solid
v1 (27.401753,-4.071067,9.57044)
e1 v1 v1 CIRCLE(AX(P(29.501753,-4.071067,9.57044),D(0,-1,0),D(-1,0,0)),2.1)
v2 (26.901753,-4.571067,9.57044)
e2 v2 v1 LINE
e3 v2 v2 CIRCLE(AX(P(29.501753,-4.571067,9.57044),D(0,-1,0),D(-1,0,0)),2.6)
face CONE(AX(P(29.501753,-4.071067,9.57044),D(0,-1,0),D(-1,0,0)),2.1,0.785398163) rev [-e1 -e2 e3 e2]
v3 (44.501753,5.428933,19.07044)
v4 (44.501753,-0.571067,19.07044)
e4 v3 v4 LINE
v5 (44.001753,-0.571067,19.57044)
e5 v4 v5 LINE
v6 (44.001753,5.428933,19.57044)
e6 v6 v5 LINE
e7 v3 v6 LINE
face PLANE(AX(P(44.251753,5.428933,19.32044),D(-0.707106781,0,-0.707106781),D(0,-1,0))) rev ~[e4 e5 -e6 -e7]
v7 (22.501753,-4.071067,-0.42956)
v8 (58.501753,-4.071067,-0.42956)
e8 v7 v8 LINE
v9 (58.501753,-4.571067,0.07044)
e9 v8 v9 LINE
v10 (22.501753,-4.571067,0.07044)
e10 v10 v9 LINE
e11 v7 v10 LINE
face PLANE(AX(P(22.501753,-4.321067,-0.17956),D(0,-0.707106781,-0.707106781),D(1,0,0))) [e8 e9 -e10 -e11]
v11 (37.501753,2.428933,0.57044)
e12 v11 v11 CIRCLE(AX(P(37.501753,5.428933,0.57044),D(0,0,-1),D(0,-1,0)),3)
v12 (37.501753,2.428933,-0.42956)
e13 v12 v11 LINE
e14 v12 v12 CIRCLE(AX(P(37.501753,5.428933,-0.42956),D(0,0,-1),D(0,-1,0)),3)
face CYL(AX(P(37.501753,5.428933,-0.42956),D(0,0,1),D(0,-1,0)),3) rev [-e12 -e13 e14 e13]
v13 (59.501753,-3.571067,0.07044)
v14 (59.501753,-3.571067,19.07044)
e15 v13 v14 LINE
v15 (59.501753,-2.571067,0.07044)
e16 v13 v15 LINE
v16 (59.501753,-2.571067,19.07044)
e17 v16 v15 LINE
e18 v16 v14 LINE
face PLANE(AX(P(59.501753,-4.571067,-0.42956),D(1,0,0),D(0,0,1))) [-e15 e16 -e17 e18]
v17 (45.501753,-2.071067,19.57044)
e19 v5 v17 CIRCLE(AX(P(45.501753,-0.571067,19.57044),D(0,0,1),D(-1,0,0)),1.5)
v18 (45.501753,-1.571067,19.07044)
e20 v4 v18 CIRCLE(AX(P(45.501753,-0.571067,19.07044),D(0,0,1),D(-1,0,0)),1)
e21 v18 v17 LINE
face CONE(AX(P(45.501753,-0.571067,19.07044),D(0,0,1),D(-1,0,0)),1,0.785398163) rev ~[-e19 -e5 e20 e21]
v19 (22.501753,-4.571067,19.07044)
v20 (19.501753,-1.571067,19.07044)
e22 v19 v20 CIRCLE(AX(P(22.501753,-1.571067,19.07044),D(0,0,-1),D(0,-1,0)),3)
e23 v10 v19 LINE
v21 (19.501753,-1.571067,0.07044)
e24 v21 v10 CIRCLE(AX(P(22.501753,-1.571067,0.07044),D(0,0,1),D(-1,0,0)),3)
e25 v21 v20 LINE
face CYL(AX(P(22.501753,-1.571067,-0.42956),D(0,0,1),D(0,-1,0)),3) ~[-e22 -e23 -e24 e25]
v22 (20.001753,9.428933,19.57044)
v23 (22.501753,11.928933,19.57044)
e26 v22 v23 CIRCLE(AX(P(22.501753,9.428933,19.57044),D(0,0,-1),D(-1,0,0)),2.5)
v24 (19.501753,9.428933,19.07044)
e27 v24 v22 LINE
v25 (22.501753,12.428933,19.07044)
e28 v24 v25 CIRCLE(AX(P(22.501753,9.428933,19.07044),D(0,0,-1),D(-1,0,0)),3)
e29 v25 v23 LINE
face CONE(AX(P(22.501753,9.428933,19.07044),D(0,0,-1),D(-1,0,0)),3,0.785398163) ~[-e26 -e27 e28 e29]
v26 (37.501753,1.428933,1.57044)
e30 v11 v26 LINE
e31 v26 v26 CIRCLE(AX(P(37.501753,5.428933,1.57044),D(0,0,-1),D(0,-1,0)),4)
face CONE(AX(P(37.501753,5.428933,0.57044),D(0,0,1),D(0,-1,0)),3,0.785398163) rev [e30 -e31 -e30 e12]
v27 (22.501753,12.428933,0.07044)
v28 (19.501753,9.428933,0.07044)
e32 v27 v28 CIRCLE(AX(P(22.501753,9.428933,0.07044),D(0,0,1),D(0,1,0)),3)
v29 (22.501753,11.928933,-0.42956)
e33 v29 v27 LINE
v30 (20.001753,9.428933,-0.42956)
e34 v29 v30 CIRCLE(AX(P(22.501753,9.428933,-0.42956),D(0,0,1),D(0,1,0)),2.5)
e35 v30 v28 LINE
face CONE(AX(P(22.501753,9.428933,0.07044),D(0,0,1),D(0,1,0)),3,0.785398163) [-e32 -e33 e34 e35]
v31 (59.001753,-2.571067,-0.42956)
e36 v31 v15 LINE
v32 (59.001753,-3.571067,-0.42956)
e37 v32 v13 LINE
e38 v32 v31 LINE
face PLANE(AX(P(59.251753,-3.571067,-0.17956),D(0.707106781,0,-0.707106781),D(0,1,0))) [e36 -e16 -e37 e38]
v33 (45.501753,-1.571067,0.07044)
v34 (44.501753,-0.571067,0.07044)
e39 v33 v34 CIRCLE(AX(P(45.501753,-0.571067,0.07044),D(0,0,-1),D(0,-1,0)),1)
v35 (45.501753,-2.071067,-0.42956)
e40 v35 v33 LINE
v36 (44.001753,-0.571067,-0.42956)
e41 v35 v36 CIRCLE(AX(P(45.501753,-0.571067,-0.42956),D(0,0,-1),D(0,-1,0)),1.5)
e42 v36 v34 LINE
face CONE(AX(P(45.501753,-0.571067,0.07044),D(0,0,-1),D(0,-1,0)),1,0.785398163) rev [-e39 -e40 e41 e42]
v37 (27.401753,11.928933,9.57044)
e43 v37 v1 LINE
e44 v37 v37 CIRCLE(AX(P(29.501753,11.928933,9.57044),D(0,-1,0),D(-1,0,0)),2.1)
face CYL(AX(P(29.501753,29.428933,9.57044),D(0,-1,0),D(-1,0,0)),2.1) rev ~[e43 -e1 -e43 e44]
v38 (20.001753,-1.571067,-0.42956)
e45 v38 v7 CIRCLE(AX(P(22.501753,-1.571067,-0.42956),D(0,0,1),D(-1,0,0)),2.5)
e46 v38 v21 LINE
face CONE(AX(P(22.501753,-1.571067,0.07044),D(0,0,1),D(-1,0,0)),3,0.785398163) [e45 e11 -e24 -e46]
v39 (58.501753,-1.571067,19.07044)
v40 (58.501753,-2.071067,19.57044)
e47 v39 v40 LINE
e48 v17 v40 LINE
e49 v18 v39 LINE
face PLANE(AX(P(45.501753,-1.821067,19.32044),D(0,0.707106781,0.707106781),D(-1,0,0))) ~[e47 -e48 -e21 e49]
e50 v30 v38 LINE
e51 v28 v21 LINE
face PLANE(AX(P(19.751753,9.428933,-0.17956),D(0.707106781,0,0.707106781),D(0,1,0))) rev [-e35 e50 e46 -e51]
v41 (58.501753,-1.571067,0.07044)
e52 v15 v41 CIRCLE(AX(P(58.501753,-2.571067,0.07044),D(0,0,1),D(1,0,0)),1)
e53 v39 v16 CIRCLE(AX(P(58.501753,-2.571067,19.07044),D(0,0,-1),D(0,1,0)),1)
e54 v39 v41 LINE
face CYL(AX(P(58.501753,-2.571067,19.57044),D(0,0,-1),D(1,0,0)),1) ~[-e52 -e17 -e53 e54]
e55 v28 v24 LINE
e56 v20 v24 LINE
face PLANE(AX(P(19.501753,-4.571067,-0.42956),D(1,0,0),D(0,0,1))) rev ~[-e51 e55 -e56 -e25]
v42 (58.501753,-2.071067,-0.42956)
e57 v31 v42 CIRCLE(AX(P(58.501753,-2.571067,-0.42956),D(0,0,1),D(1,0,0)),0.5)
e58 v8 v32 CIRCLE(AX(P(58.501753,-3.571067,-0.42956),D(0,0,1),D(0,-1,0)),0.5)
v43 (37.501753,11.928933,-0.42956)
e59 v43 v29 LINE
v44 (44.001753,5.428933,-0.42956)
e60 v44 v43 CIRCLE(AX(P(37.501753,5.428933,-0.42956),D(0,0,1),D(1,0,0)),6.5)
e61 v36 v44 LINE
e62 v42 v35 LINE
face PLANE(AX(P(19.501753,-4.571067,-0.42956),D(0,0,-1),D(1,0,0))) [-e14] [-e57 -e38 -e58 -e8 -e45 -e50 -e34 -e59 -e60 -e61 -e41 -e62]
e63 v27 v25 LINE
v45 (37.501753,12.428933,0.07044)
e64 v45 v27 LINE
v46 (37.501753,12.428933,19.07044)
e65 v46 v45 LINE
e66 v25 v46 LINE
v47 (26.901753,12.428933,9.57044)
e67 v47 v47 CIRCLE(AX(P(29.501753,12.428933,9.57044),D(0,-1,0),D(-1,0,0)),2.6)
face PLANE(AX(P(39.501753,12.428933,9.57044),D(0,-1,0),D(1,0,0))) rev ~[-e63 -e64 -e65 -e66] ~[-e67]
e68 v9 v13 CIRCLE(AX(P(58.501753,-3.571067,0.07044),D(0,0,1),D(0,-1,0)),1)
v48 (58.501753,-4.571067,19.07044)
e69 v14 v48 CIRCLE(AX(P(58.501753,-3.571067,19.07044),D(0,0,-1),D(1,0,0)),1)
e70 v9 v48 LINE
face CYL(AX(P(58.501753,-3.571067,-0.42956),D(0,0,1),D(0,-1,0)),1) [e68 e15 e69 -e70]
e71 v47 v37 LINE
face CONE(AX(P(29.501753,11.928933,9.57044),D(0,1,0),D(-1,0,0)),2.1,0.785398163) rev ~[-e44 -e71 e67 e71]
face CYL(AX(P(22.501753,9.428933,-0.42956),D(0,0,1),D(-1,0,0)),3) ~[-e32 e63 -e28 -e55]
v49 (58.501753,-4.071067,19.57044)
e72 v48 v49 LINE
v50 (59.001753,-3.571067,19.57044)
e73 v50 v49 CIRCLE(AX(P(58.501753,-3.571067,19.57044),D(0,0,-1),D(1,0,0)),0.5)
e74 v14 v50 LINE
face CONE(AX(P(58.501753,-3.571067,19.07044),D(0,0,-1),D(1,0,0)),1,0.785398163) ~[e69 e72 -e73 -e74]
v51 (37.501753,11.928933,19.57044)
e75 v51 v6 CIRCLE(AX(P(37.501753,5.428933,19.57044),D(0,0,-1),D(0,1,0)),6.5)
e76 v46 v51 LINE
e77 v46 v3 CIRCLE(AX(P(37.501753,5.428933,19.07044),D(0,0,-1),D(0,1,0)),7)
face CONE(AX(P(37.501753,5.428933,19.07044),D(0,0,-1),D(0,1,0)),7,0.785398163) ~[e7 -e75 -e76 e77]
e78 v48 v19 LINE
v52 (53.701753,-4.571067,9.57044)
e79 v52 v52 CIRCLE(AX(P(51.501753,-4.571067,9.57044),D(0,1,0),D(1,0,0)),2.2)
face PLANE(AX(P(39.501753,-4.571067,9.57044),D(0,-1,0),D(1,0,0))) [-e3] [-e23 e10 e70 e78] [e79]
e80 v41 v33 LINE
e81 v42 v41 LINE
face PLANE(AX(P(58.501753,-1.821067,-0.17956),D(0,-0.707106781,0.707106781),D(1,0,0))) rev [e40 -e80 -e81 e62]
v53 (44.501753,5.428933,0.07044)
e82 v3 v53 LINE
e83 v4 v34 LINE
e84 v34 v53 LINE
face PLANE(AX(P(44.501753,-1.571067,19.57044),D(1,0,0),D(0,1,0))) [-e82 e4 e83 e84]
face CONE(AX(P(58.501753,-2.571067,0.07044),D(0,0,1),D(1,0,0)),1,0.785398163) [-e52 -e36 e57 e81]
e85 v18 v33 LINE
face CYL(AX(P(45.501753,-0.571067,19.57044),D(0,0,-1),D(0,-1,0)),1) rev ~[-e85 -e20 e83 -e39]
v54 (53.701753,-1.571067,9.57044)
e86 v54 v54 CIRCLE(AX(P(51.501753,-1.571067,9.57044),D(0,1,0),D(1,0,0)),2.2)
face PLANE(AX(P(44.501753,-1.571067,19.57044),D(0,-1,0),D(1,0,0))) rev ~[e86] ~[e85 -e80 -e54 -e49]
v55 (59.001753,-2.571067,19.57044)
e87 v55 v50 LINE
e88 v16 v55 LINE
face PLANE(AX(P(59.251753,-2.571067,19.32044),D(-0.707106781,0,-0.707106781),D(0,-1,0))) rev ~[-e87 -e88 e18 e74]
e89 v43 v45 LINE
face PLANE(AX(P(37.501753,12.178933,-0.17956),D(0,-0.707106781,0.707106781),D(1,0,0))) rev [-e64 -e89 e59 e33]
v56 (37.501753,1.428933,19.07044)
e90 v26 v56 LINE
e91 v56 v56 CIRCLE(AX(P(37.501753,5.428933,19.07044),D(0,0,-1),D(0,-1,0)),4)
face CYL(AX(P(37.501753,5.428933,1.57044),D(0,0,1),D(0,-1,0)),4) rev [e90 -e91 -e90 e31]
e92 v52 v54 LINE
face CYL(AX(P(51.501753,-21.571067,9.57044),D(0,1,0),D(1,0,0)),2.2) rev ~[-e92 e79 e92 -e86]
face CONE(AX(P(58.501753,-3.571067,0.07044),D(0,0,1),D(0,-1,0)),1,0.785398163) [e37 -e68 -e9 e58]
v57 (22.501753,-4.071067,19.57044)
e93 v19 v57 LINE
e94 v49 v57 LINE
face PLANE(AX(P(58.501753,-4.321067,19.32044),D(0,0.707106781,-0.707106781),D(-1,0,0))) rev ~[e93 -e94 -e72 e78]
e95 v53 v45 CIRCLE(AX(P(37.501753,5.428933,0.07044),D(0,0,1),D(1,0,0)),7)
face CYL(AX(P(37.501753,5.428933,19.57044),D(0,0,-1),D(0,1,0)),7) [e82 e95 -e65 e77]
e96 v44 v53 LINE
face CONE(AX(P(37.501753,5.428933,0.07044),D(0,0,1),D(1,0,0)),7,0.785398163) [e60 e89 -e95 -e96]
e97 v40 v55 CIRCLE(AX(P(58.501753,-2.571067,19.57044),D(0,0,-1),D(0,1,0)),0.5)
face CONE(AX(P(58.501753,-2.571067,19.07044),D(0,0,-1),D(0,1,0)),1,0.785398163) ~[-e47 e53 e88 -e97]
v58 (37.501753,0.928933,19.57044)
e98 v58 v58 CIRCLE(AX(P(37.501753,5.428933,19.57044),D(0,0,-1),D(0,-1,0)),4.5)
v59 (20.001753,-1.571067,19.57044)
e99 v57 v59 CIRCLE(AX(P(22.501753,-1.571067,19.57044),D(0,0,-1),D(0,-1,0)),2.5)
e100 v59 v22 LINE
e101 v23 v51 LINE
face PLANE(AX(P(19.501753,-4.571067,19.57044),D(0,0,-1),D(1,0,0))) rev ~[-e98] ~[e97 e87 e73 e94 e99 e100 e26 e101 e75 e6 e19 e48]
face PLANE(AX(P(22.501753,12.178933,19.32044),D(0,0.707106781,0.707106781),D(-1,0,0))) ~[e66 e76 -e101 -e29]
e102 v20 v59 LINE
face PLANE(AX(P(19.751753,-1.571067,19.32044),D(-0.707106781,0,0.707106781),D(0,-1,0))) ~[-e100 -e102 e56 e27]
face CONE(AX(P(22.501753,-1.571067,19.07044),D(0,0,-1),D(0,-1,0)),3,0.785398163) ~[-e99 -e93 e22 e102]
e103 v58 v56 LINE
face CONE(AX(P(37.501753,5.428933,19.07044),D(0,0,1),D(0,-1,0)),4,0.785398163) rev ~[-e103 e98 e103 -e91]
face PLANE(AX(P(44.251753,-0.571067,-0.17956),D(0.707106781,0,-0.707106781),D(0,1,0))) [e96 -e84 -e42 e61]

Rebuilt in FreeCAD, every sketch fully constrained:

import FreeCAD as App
import Part
import Sketcher
from FreeCAD import Vector
Q = App.Units.Quantity


def edges_at(feature, points):
    """Names of the edges that pass closest to the given points."""
    edges = feature.Shape.Edges
    near = lambda p: min(range(len(edges)), key=lambda i: edges[i].distToShape(Part.Vertex(*p))[0])
    return sorted({f"Edge{near(p) + 1}" for p in points})

doc = App.newDocument("Part")
body = doc.addObject("PartDesign::Body", "Body")

sketch1 = doc.addObject("Sketcher::SketchObject", "Sketch")
body.addObject(sketch1)
sketch1.AttachmentSupport = (doc.XZ_Plane, [""])
sketch1.MapMode = "FlatFace"
sketch1.AttachmentOffset = App.Placement(Vector(0, 0, 4.571067), App.Rotation())
sketch1.addGeometry([
    Part.LineSegment(Vector(20, 20, 0), Vector(20, 0, 0)),
    Part.LineSegment(Vector(20, 0, 0), Vector(60, 0, 0)),
    Part.LineSegment(Vector(60, 0, 0), Vector(60, 20, 0)),
    Part.LineSegment(Vector(60, 20, 0), Vector(20, 20, 0)),
], False)
sketch1.addConstraint([
    Sketcher.Constraint("Coincident", 0, 2, 1, 1),
    Sketcher.Constraint("Coincident", 1, 2, 2, 1),
    Sketcher.Constraint("Coincident", 2, 2, 3, 1),
    Sketcher.Constraint("Coincident", 3, 2, 0, 1),
    Sketcher.Constraint("Vertical", 0),
    Sketcher.Constraint("Horizontal", 1),
    Sketcher.Constraint("Vertical", 2),
    Sketcher.Constraint("Horizontal", 3),
    Sketcher.Constraint("DistanceX", 1, 1, 1, 2, Q("40 mm")),
    Sketcher.Constraint("DistanceY", 0, 2, 0, 1, Q("20 mm")),
    Sketcher.Constraint("DistanceY", 0, 2, -1, 1, Q("0.42956 mm")),
    Sketcher.Constraint("DistanceX", -1, 1, 0, 2, Q("19.501753 mm")),
])
pad1 = doc.addObject("PartDesign::Pad", "Pad")
body.addObject(pad1)
pad1.Profile = sketch1
pad1.Length = 17
pad1.Reversed = True

sketch2 = doc.addObject("Sketcher::SketchObject", "Sketch001")
body.addObject(sketch2)
sketch2.AttachmentSupport = (doc.XY_Plane, [""])
sketch2.MapMode = "FlatFace"
sketch2.AttachmentOffset = App.Placement(Vector(0, 0, 19.57044), App.Rotation())
sketch2.addGeometry([
    Part.LineSegment(Vector(45, 12, 0), Vector(45, -2, 0)),
    Part.LineSegment(Vector(45, -2, 0), Vector(60, -2, 0)),
    Part.LineSegment(Vector(60, -2, 0), Vector(60, 12, 0)),
    Part.LineSegment(Vector(60, 12, 0), Vector(45, 12, 0)),
], False)
sketch2.addConstraint([
    Sketcher.Constraint("Coincident", 0, 2, 1, 1),
    Sketcher.Constraint("Coincident", 1, 2, 2, 1),
    Sketcher.Constraint("Coincident", 2, 2, 3, 1),
    Sketcher.Constraint("Coincident", 3, 2, 0, 1),
    Sketcher.Constraint("Vertical", 0),
    Sketcher.Constraint("Horizontal", 1),
    Sketcher.Constraint("Vertical", 2),
    Sketcher.Constraint("Horizontal", 3),
    Sketcher.Constraint("DistanceX", 1, 1, 1, 2, Q("15 mm")),
    Sketcher.Constraint("DistanceY", 0, 2, 0, 1, Q("14 mm")),
    Sketcher.Constraint("DistanceX", -1, 1, 0, 2, Q("44.501753 mm")),
    Sketcher.Constraint("DistanceY", 0, 2, -1, 1, Q("1.571067 mm")),
])
pocket1 = doc.addObject("PartDesign::Pocket", "Pocket")
body.addObject(pocket1)
pocket1.Profile = sketch2
pocket1.Type = "ThroughAll"

sketch3 = doc.addObject("Sketcher::SketchObject", "Sketch002")
body.addObject(sketch3)
sketch3.AttachmentSupport = (doc.XZ_Plane, [""])
sketch3.MapMode = "FlatFace"
sketch3.AttachmentOffset = App.Placement(Vector(0, 0, 4.571067), App.Rotation())
sketch3.addGeometry(Part.Circle(Vector(51.5, 9.6, 0), Vector(0, 0, 1), 2.2), False)
sketch3.addConstraint([
    Sketcher.Constraint("Diameter", 0, Q("4.4 mm")),
    Sketcher.Constraint("DistanceY", -1, 1, 0, 3, Q("9.57044 mm")),
    Sketcher.Constraint("DistanceX", -1, 1, 0, 3, Q("51.501753 mm")),
])
doc.recompute()
hole = doc.addObject("PartDesign::Hole", "Hole")
body.addObject(hole)
hole.Profile = sketch3
hole.ThreadType = "None"
hole.Diameter = 4.4
hole.DepthType = "Dimension"
hole.Depth = 17
hole.DrillPoint = "Flat"

sketch4 = doc.addObject("Sketcher::SketchObject", "Sketch003")
body.addObject(sketch4)
sketch4.AttachmentSupport = (doc.XZ_Plane, [""])
sketch4.MapMode = "FlatFace"
sketch4.AttachmentOffset = App.Placement(Vector(0, 0, -12.428933), App.Rotation())
sketch4.addGeometry(Part.Circle(Vector(29.5, 9.6, 0), Vector(0, 0, 1), 2.1), False)
sketch4.addConstraint([
    Sketcher.Constraint("Diameter", 0, Q("4.2 mm")),
    Sketcher.Constraint("DistanceY", -1, 1, 0, 3, Q("9.57044 mm")),
    Sketcher.Constraint("DistanceX", -1, 1, 0, 3, Q("29.501753 mm")),
])
doc.recompute()
hole2 = doc.addObject("PartDesign::Hole", "Hole001")
body.addObject(hole2)
hole2.Profile = sketch4
hole2.ThreadType = "None"
hole2.Diameter = 4.2
hole2.DepthType = "Dimension"
hole2.Depth = 17
hole2.DrillPoint = "Flat"
hole2.Reversed = True

sketch5 = doc.addObject("Sketcher::SketchObject", "Sketch004")
body.addObject(sketch5)
sketch5.AttachmentSupport = (doc.YZ_Plane, [""])
sketch5.MapMode = "FlatFace"
sketch5.AttachmentOffset = App.Placement(Vector(0, 0, 37.501753), App.Rotation())
sketch5.addGeometry([
    Part.LineSegment(Vector(5.4, -0.4, 0), Vector(5.4, 19.6, 0)),
    Part.LineSegment(Vector(5.4, 19.6, 0), Vector(1.4, 19.6, 0)),
    Part.LineSegment(Vector(1.4, 19.6, 0), Vector(1.4, 1.6, 0)),
    Part.LineSegment(Vector(1.4, 1.6, 0), Vector(2.4, 0.6, 0)),
    Part.LineSegment(Vector(2.4, 0.6, 0), Vector(2.4, -0.4, 0)),
    Part.LineSegment(Vector(2.4, -0.4, 0), Vector(5.4, -0.4, 0)),
], False)
sketch5.addGeometry(Part.LineSegment(Vector(5.4, 19.6, 0), Vector(5.4, -0.4, 0)), True)
sketch5.addConstraint([
    Sketcher.Constraint("Coincident", 0, 2, 1, 1),
    Sketcher.Constraint("Coincident", 1, 2, 2, 1),
    Sketcher.Constraint("Coincident", 2, 2, 3, 1),
    Sketcher.Constraint("Coincident", 3, 2, 4, 1),
    Sketcher.Constraint("Coincident", 4, 2, 5, 1),
    Sketcher.Constraint("Coincident", 5, 2, 0, 1),
    Sketcher.Constraint("Vertical", 0),
    Sketcher.Constraint("Horizontal", 1),
    Sketcher.Constraint("Vertical", 2),
    Sketcher.Constraint("Vertical", 4),
    Sketcher.Constraint("Horizontal", 5),
    Sketcher.Constraint("Vertical", 6),
    Sketcher.Constraint("Coincident", 6, 1, 0, 2),
    Sketcher.Constraint("Horizontal", 4, 2, 6, 2),
    Sketcher.Constraint("DistanceX", 1, 2, 1, 1, Q("4 mm")),
    Sketcher.Constraint("DistanceX", 5, 1, 5, 2, Q("3 mm")),
    Sketcher.Constraint("DistanceY", 0, 1, 0, 2, Q("20 mm")),
    Sketcher.Constraint("DistanceY", 2, 2, 2, 1, Q("18 mm")),
    Sketcher.Constraint("DistanceY", 4, 2, 4, 1, Q("1 mm")),
    Sketcher.Constraint("DistanceY", -1, 1, 0, 2, Q("19.57044 mm")),
    Sketcher.Constraint("DistanceX", -1, 1, 0, 2, Q("5.428933 mm")),
])
groove = doc.addObject("PartDesign::Groove", "Groove")
body.addObject(groove)
groove.Profile = sketch5
groove.ReferenceAxis = (sketch5, ["Axis0"])
groove.Angle = 360
doc.recompute()

fillet = doc.addObject("PartDesign::Fillet", "Fillet")
body.addObject(fillet)
fillet.Base = (groove, edges_at(groove, [(59.502, -1.571, 9.57), (44.502, -1.571, 9.57), (59.502, -4.571, 9.57)]))
fillet.Radius = 1
doc.recompute()

fillet2 = doc.addObject("PartDesign::Fillet", "Fillet001")
body.addObject(fillet2)
fillet2.Base = (fillet, edges_at(fillet, [(19.502, 12.429, 9.57), (19.502, -4.571, 9.57)]))
fillet2.Radius = 3
doc.recompute()

fillet3 = doc.addObject("PartDesign::Fillet", "Fillet002")
body.addObject(fillet3)
fillet3.Base = (fillet2, edges_at(fillet2, [(44.502, 12.429, 9.57)]))
fillet3.Radius = 7
doc.recompute()

chamfer = doc.addObject("PartDesign::Chamfer", "Chamfer")
body.addObject(chamfer)
chamfer.Base = (fillet3, edges_at(fillet3, [
    (31.602, 12.429, 9.57),
    (31.602, -4.571, 9.57),
    (37.502, 9.429, 19.57),
    (52.002, -1.571, 19.57),
    (52.002, -1.571, -0.43),
    (59.502, -3.071, 19.57),
    (59.502, -3.071, -0.43),
    (40.502, -4.571, 19.57),
    (59.209, -4.278, 19.57),
    (59.209, -1.864, 19.57),
    (59.209, -4.278, -0.43),
    (59.209, -1.864, -0.43),
    (44.795, -1.278, 19.57),
    (44.795, -1.278, -0.43),
    (40.502, -4.571, -0.43),
    (19.502, 3.929, -0.43),
    (30.002, 12.429, -0.43),
    (20.38, 11.55, -0.43),
    (20.38, -3.692, -0.43),
    (19.502, 3.929, 19.57),
    (20.38, 11.55, 19.57),
    (20.38, -3.692, 19.57),
    (44.502, 2.429, 19.57),
    (44.502, 2.429, -0.43),
    (30.002, 12.429, 19.57),
    (42.452, 10.379, 19.57),
    (42.452, 10.379, -0.43),
]))
chamfer.Size = 0.5

doc.recompute()
